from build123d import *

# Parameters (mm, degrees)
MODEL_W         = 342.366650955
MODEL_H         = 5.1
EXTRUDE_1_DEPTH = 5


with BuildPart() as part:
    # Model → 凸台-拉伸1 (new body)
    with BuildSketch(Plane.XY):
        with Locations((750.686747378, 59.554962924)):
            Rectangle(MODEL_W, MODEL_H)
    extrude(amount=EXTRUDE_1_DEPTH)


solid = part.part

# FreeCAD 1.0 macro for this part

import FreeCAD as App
import Part
import Sketcher
from FreeCAD import Vector

doc = App.newDocument("Part")
params = doc.addObject("Spreadsheet::Sheet", "Params")
for row, (alias, value) in enumerate([
    ("sketch1_height", "5.1 mm"),
    ("pad1_length", "5 mm"),
], start=1):
    params.set(f"A{row}", alias)
    params.set(f"B{row}", "=" + value)
    params.setAlias(f"B{row}", alias)

body = doc.addObject("PartDesign::Body", "Body")

# Sketch on XY plane
sketch1 = doc.addObject("Sketcher::SketchObject", "Sketch")
body.addObject(sketch1)
sketch1.AttachmentSupport = (doc.XY_Plane, [""])
sketch1.MapMode = "FlatFace"
sketch1.addGeometry([
    Part.LineSegment(Vector(579.503422, 62.104963, 0), Vector(579.503422, 57.004963, 0)),
    Part.LineSegment(Vector(579.503422, 57.004963, 0), Vector(921.870073, 57.004963, 0)),
    Part.LineSegment(Vector(921.870073, 57.004963, 0), Vector(921.870073, 62.104963, 0)),
    Part.LineSegment(Vector(921.870073, 62.104963, 0), Vector(579.503422, 62.104963, 0)),
], False)
sketch1.addConstraint([
    Sketcher.Constraint("Coincident", 0, 2, 1, 1),
    Sketcher.Constraint("Coincident", 1, 2, 2, 1),
    Sketcher.Constraint("Coincident", 2, 2, 3, 1),
    Sketcher.Constraint("Coincident", 3, 2, 0, 1),
    Sketcher.Constraint("Vertical", 0),
    Sketcher.Constraint("Horizontal", 1),
    Sketcher.Constraint("Vertical", 2),
    Sketcher.Constraint("Horizontal", 3),
    Sketcher.Constraint("DistanceY", 0, 2, 0, 1, 5.1),
    Sketcher.Constraint("DistanceX", 1, 1, 1, 2, 342.366651),
    Sketcher.Constraint("DistanceX", -1, 1, 0, 2, 579.503422),
    Sketcher.Constraint("DistanceY", -1, 1, 0, 2, 57.004963),
])
sketch1.setExpression("Constraints[8]", "Params.sketch1_height")
pad1 = doc.addObject("PartDesign::Pad", "Pad")
body.addObject(pad1)
pad1.Profile = sketch1
pad1.setExpression("Length", "Params.pad1_length")

doc.recompute()
